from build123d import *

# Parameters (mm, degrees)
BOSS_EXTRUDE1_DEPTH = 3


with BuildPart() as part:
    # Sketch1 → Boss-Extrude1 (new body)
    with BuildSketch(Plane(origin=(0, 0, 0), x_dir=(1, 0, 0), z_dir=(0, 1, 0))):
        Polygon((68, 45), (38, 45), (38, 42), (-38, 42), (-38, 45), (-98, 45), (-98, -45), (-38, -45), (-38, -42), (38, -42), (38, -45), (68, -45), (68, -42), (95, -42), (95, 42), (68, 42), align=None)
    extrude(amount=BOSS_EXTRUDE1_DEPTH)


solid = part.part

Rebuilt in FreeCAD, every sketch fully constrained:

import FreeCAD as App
import Part
import Sketcher
Q = App.Units.Quantity

doc = App.newDocument("Part")
body = doc.addObject("PartDesign::Body", "Body")

# Sketch on XZ plane
sketch1 = body.newObject("Sketcher::SketchObject", "Sketch")
sketch1.AttachmentSupport = (doc.getObject("XZ_Plane"), [""])
sketch1.MapMode = "FlatFace"
sketch1.addGeometry(Part.LineSegment(App.Vector(68, -45, 0), App.Vector(38, -45, 0)), False)
sketch1.addGeometry(Part.LineSegment(App.Vector(38, -45, 0), App.Vector(38, -42, 0)), False)
sketch1.addGeometry(Part.LineSegment(App.Vector(38, -42, 0), App.Vector(-38, -42, 0)), False)
sketch1.addGeometry(Part.LineSegment(App.Vector(-38, -42, 0), App.Vector(-38, -45, 0)), False)
sketch1.addGeometry(Part.LineSegment(App.Vector(-38, -45, 0), App.Vector(-98, -45, 0)), False)
sketch1.addGeometry(Part.LineSegment(App.Vector(-98, -45, 0), App.Vector(-98, 45, 0)), False)
sketch1.addGeometry(Part.LineSegment(App.Vector(-98, 45, 0), App.Vector(-38, 45, 0)), False)
sketch1.addGeometry(Part.LineSegment(App.Vector(-38, 45, 0), App.Vector(-38, 42, 0)), False)
sketch1.addGeometry(Part.LineSegment(App.Vector(-38, 42, 0), App.Vector(38, 42, 0)), False)
sketch1.addGeometry(Part.LineSegment(App.Vector(38, 42, 0), App.Vector(38, 45, 0)), False)
sketch1.addGeometry(Part.LineSegment(App.Vector(38, 45, 0), App.Vector(68, 45, 0)), False)
sketch1.addGeometry(Part.LineSegment(App.Vector(68, 45, 0), App.Vector(68, 42, 0)), False)
sketch1.addGeometry(Part.LineSegment(App.Vector(68, 42, 0), App.Vector(95, 42, 0)), False)
sketch1.addGeometry(Part.LineSegment(App.Vector(95, 42, 0), App.Vector(95, -42, 0)), False)
sketch1.addGeometry(Part.LineSegment(App.Vector(95, -42, 0), App.Vector(68, -42, 0)), False)
sketch1.addGeometry(Part.LineSegment(App.Vector(68, -42, 0), App.Vector(68, -45, 0)), False)
sketch1.addConstraint(Sketcher.Constraint("Coincident", 0, 2, 1, 1))
sketch1.addConstraint(Sketcher.Constraint("Coincident", 1, 2, 2, 1))
sketch1.addConstraint(Sketcher.Constraint("Coincident", 2, 2, 3, 1))
sketch1.addConstraint(Sketcher.Constraint("Coincident", 3, 2, 4, 1))
sketch1.addConstraint(Sketcher.Constraint("Coincident", 4, 2, 5, 1))
sketch1.addConstraint(Sketcher.Constraint("Coincident", 5, 2, 6, 1))
sketch1.addConstraint(Sketcher.Constraint("Coincident", 6, 2, 7, 1))
sketch1.addConstraint(Sketcher.Constraint("Coincident", 7, 2, 8, 1))
sketch1.addConstraint(Sketcher.Constraint("Coincident", 8, 2, 9, 1))
sketch1.addConstraint(Sketcher.Constraint("Coincident", 9, 2, 10, 1))
sketch1.addConstraint(Sketcher.Constraint("Coincident", 10, 2, 11, 1))
sketch1.addConstraint(Sketcher.Constraint("Coincident", 11, 2, 12, 1))
sketch1.addConstraint(Sketcher.Constraint("Coincident", 12, 2, 13, 1))
sketch1.addConstraint(Sketcher.Constraint("Coincident", 13, 2, 14, 1))
sketch1.addConstraint(Sketcher.Constraint("Coincident", 14, 2, 15, 1))
sketch1.addConstraint(Sketcher.Constraint("Coincident", 15, 2, 0, 1))
sketch1.addConstraint(Sketcher.Constraint("Horizontal", 0))
sketch1.addConstraint(Sketcher.Constraint("Vertical", 1))
sketch1.addConstraint(Sketcher.Constraint("Horizontal", 2))
sketch1.addConstraint(Sketcher.Constraint("Vertical", 3))
sketch1.addConstraint(Sketcher.Constraint("Horizontal", 4))
sketch1.addConstraint(Sketcher.Constraint("Vertical", 5))
sketch1.addConstraint(Sketcher.Constraint("Horizontal", 6))
sketch1.addConstraint(Sketcher.Constraint("Vertical", 7))
sketch1.addConstraint(Sketcher.Constraint("Horizontal", 8))
sketch1.addConstraint(Sketcher.Constraint("Vertical", 9))
sketch1.addConstraint(Sketcher.Constraint("Horizontal", 10))
sketch1.addConstraint(Sketcher.Constraint("Vertical", 11))
sketch1.addConstraint(Sketcher.Constraint("Horizontal", 12))
sketch1.addConstraint(Sketcher.Constraint("Vertical", 13))
sketch1.addConstraint(Sketcher.Constraint("Horizontal", 14))
sketch1.addConstraint(Sketcher.Constraint("Vertical", 15))
sketch1.addConstraint(Sketcher.Constraint("Symmetric", 0, 2, 6, 2, -1, 1))
sketch1.addConstraint(Sketcher.Constraint("Symmetric", 2, 2, 8, 2, -1, 1))
sketch1.addConstraint(Sketcher.Constraint("Symmetric", 0, 2, 3, 2, -2))
sketch1.addConstraint(Sketcher.Constraint("Symmetric", 11, 2, 14, 2, -1))
sketch1.addConstraint(Sketcher.Constraint("Horizontal", 6, 2, 9, 2))
sketch1.addConstraint(Sketcher.Constraint("Horizontal", 8, 2, 11, 2))
sketch1.addConstraint(Sketcher.Constraint("DistanceX", 0, 2, 0, 1, Q("30 mm")))
sketch1.addConstraint(Sketcher.Constraint("DistanceX", 2, 2, 2, 1, Q("76 mm")))
sketch1.addConstraint(Sketcher.Constraint("DistanceX", 4, 2, 4, 1, Q("60 mm")))
sketch1.addConstraint(Sketcher.Constraint("DistanceX", 12, 1, 12, 2, Q("27 mm")))
sketch1.addConstraint(Sketcher.Constraint("DistanceY", 1, 1, 1, 2, Q("3 mm")))
sketch1.addConstraint(Sketcher.Constraint("DistanceY", 5, 1, 5, 2, Q("90 mm")))
pad1 = body.newObject("PartDesign::Pad", "Pad")
pad1.Profile = sketch1
pad1.Length = 3
pad1.Reversed = True

doc.recompute()
